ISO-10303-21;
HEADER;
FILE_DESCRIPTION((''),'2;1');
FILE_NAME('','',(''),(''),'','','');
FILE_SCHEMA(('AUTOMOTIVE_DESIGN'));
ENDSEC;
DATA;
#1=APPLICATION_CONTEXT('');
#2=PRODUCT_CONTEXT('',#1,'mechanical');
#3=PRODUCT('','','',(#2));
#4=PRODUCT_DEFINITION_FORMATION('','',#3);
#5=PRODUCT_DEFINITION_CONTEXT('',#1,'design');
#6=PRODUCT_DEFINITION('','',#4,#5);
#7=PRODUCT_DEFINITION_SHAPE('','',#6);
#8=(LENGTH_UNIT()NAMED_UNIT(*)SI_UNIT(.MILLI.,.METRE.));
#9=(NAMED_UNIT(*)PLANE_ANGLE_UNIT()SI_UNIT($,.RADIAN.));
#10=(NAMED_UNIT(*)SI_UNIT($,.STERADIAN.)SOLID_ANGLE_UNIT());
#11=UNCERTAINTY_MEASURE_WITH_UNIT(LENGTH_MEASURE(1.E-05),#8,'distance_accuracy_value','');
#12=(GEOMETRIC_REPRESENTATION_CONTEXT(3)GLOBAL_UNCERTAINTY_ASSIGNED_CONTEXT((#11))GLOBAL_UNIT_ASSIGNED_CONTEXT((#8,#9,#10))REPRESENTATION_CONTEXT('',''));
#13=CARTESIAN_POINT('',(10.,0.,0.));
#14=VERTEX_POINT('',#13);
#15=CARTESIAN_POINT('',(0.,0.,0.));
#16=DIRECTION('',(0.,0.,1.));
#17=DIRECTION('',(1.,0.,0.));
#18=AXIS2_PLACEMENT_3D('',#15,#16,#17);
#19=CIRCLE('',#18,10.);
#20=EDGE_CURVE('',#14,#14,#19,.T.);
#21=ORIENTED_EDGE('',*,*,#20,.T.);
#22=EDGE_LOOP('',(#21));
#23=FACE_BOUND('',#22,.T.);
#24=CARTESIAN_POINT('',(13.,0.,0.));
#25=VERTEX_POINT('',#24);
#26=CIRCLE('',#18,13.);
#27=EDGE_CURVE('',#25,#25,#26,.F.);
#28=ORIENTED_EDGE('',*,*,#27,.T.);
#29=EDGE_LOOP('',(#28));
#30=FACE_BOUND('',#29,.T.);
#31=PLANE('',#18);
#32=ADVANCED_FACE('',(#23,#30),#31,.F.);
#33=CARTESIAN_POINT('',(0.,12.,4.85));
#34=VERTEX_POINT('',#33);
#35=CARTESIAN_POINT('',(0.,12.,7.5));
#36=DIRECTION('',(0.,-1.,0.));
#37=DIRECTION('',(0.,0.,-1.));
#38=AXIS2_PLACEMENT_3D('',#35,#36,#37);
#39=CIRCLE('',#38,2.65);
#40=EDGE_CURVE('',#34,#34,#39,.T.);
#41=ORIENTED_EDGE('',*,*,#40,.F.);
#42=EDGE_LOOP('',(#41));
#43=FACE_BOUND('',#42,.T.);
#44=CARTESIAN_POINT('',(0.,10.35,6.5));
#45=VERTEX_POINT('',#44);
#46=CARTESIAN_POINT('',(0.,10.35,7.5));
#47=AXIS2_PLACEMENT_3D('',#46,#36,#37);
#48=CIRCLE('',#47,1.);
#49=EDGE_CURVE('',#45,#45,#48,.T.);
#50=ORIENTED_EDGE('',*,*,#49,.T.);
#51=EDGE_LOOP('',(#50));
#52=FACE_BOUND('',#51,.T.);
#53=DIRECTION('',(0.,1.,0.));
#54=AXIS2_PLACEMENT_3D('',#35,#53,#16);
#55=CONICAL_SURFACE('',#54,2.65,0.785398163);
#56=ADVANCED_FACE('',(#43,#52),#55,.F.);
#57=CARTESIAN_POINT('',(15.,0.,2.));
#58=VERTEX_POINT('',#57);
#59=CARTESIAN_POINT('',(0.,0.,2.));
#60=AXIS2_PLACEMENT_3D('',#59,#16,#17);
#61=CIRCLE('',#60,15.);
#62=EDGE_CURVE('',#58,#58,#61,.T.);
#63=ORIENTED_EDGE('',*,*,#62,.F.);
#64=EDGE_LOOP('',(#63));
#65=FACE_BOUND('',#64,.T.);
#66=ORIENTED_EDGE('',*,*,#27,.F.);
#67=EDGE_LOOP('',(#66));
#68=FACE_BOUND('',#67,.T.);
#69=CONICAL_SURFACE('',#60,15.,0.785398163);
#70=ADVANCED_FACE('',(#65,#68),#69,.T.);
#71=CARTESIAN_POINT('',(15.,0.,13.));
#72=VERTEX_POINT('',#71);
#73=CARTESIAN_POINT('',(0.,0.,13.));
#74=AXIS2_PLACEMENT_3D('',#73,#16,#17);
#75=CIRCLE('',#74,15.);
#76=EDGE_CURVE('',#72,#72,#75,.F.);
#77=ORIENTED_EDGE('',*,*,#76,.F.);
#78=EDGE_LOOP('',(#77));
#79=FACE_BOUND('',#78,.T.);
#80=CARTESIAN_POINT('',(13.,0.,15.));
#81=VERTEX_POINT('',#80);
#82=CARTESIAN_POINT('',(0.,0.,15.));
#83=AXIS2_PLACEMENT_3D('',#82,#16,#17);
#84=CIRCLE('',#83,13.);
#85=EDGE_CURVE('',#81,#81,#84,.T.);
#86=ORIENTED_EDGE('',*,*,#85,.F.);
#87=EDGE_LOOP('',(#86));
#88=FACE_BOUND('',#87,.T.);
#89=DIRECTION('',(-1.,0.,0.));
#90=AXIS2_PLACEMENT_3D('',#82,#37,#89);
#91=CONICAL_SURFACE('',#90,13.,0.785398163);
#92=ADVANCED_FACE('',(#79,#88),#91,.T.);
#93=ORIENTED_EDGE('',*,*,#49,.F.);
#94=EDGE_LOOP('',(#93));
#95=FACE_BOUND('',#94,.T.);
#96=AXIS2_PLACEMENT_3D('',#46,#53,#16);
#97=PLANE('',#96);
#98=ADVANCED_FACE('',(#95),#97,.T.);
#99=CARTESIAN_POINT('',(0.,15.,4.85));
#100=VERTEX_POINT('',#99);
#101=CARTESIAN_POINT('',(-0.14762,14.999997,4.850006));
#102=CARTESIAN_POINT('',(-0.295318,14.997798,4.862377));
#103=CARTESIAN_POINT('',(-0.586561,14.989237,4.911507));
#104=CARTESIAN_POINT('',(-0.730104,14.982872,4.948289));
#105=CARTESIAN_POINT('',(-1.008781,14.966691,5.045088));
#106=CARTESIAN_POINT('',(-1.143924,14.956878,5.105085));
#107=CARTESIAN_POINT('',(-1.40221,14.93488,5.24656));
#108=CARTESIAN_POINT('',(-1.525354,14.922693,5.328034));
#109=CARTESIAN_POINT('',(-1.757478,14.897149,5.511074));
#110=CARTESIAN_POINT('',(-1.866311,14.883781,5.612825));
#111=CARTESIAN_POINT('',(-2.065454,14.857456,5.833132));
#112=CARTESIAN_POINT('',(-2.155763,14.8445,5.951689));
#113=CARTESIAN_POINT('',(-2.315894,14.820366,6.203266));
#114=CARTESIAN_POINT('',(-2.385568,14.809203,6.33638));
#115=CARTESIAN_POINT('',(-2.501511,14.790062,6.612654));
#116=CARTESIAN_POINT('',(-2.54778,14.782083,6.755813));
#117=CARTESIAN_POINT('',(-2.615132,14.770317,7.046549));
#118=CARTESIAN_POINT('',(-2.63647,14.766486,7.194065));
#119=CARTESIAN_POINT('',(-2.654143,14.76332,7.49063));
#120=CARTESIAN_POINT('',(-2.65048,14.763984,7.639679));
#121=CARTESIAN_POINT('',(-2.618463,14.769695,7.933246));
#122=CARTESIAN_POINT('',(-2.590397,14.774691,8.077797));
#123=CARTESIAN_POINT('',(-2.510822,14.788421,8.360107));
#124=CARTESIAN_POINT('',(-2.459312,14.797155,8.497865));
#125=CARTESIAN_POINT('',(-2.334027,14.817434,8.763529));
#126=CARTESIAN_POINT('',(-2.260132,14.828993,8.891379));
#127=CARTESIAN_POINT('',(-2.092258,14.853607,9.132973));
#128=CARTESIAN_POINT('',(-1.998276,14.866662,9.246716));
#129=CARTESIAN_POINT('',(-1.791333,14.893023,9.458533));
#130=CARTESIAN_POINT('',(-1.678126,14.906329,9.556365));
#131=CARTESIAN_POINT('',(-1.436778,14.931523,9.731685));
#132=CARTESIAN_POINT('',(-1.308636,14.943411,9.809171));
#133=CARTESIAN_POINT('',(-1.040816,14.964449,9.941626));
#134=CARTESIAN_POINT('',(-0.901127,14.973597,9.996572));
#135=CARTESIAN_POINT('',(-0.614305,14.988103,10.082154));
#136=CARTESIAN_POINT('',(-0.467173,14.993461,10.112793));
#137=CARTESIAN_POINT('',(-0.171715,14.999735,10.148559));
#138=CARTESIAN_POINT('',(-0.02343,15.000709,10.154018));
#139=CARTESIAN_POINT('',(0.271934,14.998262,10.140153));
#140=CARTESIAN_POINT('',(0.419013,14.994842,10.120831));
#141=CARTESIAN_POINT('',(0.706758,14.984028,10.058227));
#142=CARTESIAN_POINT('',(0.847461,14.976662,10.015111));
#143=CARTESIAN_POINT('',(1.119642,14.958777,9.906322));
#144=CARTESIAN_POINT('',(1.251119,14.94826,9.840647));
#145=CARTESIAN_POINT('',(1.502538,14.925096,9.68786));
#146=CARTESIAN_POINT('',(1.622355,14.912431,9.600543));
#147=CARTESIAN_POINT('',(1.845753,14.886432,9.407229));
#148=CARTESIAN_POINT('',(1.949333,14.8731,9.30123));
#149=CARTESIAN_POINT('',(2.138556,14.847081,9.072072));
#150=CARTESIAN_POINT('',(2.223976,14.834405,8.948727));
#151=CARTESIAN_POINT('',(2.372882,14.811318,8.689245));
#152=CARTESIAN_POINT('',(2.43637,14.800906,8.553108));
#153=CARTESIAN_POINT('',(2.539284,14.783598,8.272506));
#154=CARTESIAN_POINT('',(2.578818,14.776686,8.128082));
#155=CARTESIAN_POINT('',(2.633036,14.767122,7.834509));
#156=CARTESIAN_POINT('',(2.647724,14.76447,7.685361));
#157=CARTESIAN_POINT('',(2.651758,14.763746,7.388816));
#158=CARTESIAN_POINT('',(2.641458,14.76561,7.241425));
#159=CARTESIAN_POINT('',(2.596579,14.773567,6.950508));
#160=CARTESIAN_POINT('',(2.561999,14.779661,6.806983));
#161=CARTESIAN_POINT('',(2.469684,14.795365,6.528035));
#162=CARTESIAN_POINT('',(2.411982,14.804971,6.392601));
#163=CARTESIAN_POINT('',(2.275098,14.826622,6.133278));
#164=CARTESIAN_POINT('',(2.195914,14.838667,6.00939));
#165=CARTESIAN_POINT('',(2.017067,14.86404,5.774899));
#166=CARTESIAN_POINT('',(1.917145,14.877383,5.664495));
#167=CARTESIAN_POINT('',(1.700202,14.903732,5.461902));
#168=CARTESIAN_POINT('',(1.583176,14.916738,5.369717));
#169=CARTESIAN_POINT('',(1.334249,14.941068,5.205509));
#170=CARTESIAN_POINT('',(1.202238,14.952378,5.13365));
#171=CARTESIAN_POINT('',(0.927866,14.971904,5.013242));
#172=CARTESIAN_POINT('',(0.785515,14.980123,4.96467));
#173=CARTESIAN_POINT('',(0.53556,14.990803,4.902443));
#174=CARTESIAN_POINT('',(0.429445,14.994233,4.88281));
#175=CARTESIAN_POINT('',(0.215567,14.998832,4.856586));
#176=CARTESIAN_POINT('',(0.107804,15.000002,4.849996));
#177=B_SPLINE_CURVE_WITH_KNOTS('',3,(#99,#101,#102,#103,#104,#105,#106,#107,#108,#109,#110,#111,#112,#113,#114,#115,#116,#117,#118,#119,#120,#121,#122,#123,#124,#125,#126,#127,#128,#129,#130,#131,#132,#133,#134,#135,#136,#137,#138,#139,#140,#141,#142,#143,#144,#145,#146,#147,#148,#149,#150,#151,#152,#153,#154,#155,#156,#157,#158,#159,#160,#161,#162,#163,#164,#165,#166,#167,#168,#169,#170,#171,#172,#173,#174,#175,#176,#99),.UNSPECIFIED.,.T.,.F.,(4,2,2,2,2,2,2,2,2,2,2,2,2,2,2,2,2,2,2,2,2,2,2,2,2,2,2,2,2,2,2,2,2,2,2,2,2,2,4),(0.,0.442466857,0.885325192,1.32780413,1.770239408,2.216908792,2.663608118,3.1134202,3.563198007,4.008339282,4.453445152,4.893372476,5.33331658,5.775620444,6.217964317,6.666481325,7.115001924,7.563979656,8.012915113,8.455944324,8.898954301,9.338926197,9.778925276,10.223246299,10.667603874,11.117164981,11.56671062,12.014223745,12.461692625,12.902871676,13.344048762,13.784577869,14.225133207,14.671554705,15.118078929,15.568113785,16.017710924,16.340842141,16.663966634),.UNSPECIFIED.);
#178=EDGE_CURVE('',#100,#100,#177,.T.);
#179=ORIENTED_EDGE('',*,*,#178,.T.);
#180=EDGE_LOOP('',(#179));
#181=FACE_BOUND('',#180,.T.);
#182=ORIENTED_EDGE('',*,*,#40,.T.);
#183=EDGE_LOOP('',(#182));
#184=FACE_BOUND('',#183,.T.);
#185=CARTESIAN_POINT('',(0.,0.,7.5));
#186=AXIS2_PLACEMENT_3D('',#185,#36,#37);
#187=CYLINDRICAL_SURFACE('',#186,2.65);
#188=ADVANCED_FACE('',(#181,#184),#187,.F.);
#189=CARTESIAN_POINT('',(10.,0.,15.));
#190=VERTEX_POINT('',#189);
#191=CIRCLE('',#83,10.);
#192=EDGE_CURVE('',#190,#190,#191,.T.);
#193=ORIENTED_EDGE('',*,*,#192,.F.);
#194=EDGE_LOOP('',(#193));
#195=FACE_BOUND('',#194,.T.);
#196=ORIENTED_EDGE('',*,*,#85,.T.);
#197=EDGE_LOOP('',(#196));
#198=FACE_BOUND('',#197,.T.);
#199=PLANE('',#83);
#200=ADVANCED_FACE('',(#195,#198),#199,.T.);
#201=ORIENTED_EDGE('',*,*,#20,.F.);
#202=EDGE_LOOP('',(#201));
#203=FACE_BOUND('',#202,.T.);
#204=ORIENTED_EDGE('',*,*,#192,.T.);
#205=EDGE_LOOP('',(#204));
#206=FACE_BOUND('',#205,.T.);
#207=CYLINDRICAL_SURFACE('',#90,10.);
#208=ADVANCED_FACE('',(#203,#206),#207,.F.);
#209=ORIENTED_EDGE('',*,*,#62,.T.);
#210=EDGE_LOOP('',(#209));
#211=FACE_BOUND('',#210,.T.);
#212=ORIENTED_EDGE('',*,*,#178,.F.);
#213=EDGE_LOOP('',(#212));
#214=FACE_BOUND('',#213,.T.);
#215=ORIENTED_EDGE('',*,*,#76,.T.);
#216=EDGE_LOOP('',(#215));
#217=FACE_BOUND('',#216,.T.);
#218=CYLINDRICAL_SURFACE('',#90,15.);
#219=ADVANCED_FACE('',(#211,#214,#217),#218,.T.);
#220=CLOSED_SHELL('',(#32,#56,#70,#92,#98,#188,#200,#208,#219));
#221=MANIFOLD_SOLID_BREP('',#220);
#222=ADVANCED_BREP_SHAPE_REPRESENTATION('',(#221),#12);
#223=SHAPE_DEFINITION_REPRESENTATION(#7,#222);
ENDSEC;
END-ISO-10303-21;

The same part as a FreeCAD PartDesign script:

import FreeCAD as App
import Part
import Sketcher
from FreeCAD import Vector
Q = App.Units.Quantity


def edges_at(feature, points):
    """Names of the edges that pass closest to the given points."""
    edges = feature.Shape.Edges
    near = lambda p: min(range(len(edges)), key=lambda i: edges[i].distToShape(Part.Vertex(*p))[0])
    return sorted({f"Edge{near(p) + 1}" for p in points})

doc = App.newDocument("Part")
body = doc.addObject("PartDesign::Body", "Body")

sketch1 = body.newObject("Sketcher::SketchObject", "Sketch")
sketch1.AttachmentSupport = (doc.getObject("XY_Plane"), [""])
sketch1.MapMode = "FlatFace"
sketch1.addGeometry(Part.Circle(Vector(0, 0, 0), Vector(0, 0, 1), 15), False)
sketch1.addGeometry(Part.Circle(Vector(0, 0, 0), Vector(0, 0, 1), 10), False)
sketch1.addConstraint(Sketcher.Constraint("Coincident", 0, 3, -1, 1))
sketch1.addConstraint(Sketcher.Constraint("Coincident", 1, 3, -1, 1))
sketch1.addConstraint(Sketcher.Constraint("Diameter", 0, 30.0))
sketch1.addConstraint(Sketcher.Constraint("Diameter", 1, 20.0))
pad1 = body.newObject("PartDesign::Pad", "Pad")
pad1.Profile = sketch1
pad1.Length = 15
doc.recompute()

chamfer = body.newObject("PartDesign::Chamfer", "Chamfer")
chamfer.Base = (pad1, edges_at(pad1, [(-15, 0, 0), (-15, 0, 15)]))
chamfer.Size = 2

sketch2 = body.newObject("Sketcher::SketchObject", "Sketch001")
sketch2.AttachmentSupport = (doc.getObject("YZ_Plane"), [""])
sketch2.MapMode = "FlatFace"
sketch2.addGeometry(Part.LineSegment(Vector(15, 7.5, 0), Vector(15, 10.2, 0)), False)
sketch2.addGeometry(Part.LineSegment(Vector(15, 10.2, 0), Vector(12, 10.2, 0)), False)
sketch2.addGeometry(Part.LineSegment(Vector(12, 10.2, 0), Vector(10.3, 8.5, 0)), False)
sketch2.addGeometry(Part.LineSegment(Vector(10.3, 8.5, 0), Vector(10.3, 7.5, 0)), False)
sketch2.addGeometry(Part.LineSegment(Vector(10.3, 7.5, 0), Vector(15, 7.5, 0)), False)
sketch2.addGeometry(Part.LineSegment(Vector(10.3, 7.5, 0), Vector(15, 7.5, 0)), True)
sketch2.addConstraint(Sketcher.Constraint("Coincident", 0, 2, 1, 1))
sketch2.addConstraint(Sketcher.Constraint("Coincident", 1, 2, 2, 1))
sketch2.addConstraint(Sketcher.Constraint("Coincident", 2, 2, 3, 1))
sketch2.addConstraint(Sketcher.Constraint("Coincident", 3, 2, 4, 1))
sketch2.addConstraint(Sketcher.Constraint("Coincident", 4, 2, 0, 1))
sketch2.addConstraint(Sketcher.Constraint("Vertical", 0))
sketch2.addConstraint(Sketcher.Constraint("Horizontal", 1))
sketch2.addConstraint(Sketcher.Constraint("Vertical", 3))
sketch2.addConstraint(Sketcher.Constraint("Horizontal", 4))
sketch2.addConstraint(Sketcher.Constraint("Horizontal", 5))
sketch2.addConstraint(Sketcher.Constraint("Coincident", 5, 1, 3, 2))
sketch2.addConstraint(Sketcher.Constraint("Vertical", 0, 2, 5, 2))
sketch2.addConstraint(Sketcher.Constraint("DistanceX", 1, 2, 1, 1, 3.0))
sketch2.addConstraint(Sketcher.Constraint("DistanceY", 3, 2, 3, 1, 1.0))
sketch2.addConstraint(Sketcher.Constraint("Angle", 2, Q("-135 deg")))
sketch2.addConstraint(Sketcher.Constraint("DistanceX", -1, 1, 0, 2, 15.0))
sketch2.addConstraint(Sketcher.Constraint("DistanceX", 4, 1, 4, 2, 4.65))
sketch2.addConstraint(Sketcher.Constraint("DistanceY", -1, 1, 2, 2, 8.5))
groove = body.newObject("PartDesign::Groove", "Groove")
groove.Profile = sketch2
groove.ReferenceAxis = (sketch2, ["Axis0"])
groove.Angle = 360

doc.recompute()
